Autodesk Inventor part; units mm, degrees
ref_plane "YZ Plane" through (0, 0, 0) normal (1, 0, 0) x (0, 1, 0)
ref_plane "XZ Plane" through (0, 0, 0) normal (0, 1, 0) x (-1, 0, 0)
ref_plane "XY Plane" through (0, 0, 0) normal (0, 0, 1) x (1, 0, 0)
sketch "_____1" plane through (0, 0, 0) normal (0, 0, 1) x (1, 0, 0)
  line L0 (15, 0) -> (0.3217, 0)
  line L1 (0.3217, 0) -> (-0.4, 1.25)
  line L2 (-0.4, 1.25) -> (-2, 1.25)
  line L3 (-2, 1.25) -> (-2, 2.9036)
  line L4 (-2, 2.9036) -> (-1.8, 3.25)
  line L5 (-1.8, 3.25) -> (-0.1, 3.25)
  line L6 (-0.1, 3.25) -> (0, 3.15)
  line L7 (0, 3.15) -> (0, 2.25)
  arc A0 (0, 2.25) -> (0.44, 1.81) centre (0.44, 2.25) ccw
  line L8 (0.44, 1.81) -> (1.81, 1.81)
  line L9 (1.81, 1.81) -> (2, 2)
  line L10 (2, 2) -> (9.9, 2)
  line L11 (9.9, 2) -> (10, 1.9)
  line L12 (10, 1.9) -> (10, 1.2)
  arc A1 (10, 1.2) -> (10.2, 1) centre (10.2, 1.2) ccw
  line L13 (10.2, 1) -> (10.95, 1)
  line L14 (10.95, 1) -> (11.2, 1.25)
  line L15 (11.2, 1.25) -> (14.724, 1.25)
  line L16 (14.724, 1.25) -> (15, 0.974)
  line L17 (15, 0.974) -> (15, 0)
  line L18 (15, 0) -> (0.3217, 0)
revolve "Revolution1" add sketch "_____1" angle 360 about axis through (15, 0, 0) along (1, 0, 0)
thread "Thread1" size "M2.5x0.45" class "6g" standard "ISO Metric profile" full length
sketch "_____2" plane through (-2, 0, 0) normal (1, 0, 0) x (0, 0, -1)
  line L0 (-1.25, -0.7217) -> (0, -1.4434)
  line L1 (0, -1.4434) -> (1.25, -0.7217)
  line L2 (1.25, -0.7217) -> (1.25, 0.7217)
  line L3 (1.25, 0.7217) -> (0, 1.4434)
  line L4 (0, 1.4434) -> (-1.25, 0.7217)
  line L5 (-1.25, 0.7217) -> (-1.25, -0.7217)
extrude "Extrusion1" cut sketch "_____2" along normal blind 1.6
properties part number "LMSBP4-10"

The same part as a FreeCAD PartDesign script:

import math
import FreeCAD as App
import Part
import Sketcher
Q = App.Units.Quantity


def add_polygon(sketch, points):
    """Adds a closed chain of lines whose ends are joined by coincident constraints."""
    first, n = sketch.GeometryCount, len(points)
    for a, b in zip(points, points[1:] + points[:1]):
        sketch.addGeometry(Part.LineSegment(App.Vector(*a, 0), App.Vector(*b, 0)), False)
    for i in range(n):
        sketch.addConstraint(Sketcher.Constraint("Coincident", first + i, 2, first + (i + 1) % n, 1))

doc = App.newDocument("Part")
body = doc.addObject("PartDesign::Body", "Body")

sketch1 = doc.addObject("Sketcher::SketchObject", "Sketch")
body.addObject(sketch1)
sketch1.AttachmentSupport = (doc.XY_Plane, [""])
sketch1.MapMode = "FlatFace"
sketch1.addGeometry([
    Part.LineSegment(App.Vector(0.32, 0, 0), App.Vector(15, 0, 0)),
    Part.LineSegment(App.Vector(15, 0, 0), App.Vector(15, 0.97, 0)),
    Part.LineSegment(App.Vector(15, 0.97, 0), App.Vector(14.72, 1.25, 0)),
    Part.LineSegment(App.Vector(14.72, 1.25, 0), App.Vector(11.2, 1.25, 0)),
    Part.LineSegment(App.Vector(11.2, 1.25, 0), App.Vector(10.95, 1, 0)),
    Part.LineSegment(App.Vector(10.95, 1, 0), App.Vector(10.2, 1, 0)),
    Part.ArcOfCircle(Part.Circle(App.Vector(10.2, 1.2, 0), App.Vector(0, 0, 1), 0.2), math.radians(180), math.radians(270)),
    Part.LineSegment(App.Vector(10, 1.2, 0), App.Vector(10, 1.9, 0)),
    Part.LineSegment(App.Vector(10, 1.9, 0), App.Vector(9.9, 2, 0)),
    Part.LineSegment(App.Vector(9.9, 2, 0), App.Vector(2, 2, 0)),
    Part.LineSegment(App.Vector(2, 2, 0), App.Vector(1.81, 1.81, 0)),
    Part.LineSegment(App.Vector(1.81, 1.81, 0), App.Vector(0.44, 1.81, 0)),
    Part.ArcOfCircle(Part.Circle(App.Vector(0.44, 2.25, 0), App.Vector(0, 0, 1), 0.44), math.radians(180), math.radians(270)),
    Part.LineSegment(App.Vector(0, 2.25, 0), App.Vector(0, 3.15, 0)),
    Part.LineSegment(App.Vector(0, 3.15, 0), App.Vector(-0.1, 3.25, 0)),
    Part.LineSegment(App.Vector(-0.1, 3.25, 0), App.Vector(-1.8, 3.25, 0)),
    Part.LineSegment(App.Vector(-1.8, 3.25, 0), App.Vector(-2, 2.9, 0)),
    Part.LineSegment(App.Vector(-2, 2.9, 0), App.Vector(-2, 1.25, 0)),
    Part.LineSegment(App.Vector(-2, 1.25, 0), App.Vector(-0.4, 1.25, 0)),
    Part.LineSegment(App.Vector(-0.4, 1.25, 0), App.Vector(0.32, 0, 0)),
], False)
sketch1.addConstraint([
    Sketcher.Constraint("Coincident", 0, 2, 1, 1),
    Sketcher.Constraint("Coincident", 1, 2, 2, 1),
    Sketcher.Constraint("Coincident", 2, 2, 3, 1),
    Sketcher.Constraint("Coincident", 3, 2, 4, 1),
    Sketcher.Constraint("Coincident", 4, 2, 5, 1),
    Sketcher.Constraint("Tangent", 5, 2, 6, 2),
    Sketcher.Constraint("Tangent", 6, 1, 7, 1),
    Sketcher.Constraint("Coincident", 7, 2, 8, 1),
    Sketcher.Constraint("Coincident", 8, 2, 9, 1),
    Sketcher.Constraint("Coincident", 9, 2, 10, 1),
    Sketcher.Constraint("Coincident", 10, 2, 11, 1),
    Sketcher.Constraint("Tangent", 11, 2, 12, 2),
    Sketcher.Constraint("Tangent", 12, 1, 13, 1),
    Sketcher.Constraint("Coincident", 13, 2, 14, 1),
    Sketcher.Constraint("Coincident", 14, 2, 15, 1),
    Sketcher.Constraint("Coincident", 15, 2, 16, 1),
    Sketcher.Constraint("Coincident", 16, 2, 17, 1),
    Sketcher.Constraint("Coincident", 17, 2, 18, 1),
    Sketcher.Constraint("Coincident", 18, 2, 19, 1),
    Sketcher.Constraint("Coincident", 19, 2, 0, 1),
    Sketcher.Constraint("Horizontal", 0),
    Sketcher.Constraint("Vertical", 1),
    Sketcher.Constraint("Horizontal", 3),
    Sketcher.Constraint("Horizontal", 5),
    Sketcher.Constraint("Vertical", 7),
    Sketcher.Constraint("Horizontal", 9),
    Sketcher.Constraint("Horizontal", 11),
    Sketcher.Constraint("Vertical", 13),
    Sketcher.Constraint("Horizontal", 15),
    Sketcher.Constraint("Vertical", 17),
    Sketcher.Constraint("Horizontal", 18),
    Sketcher.Constraint("PointOnObject", 0, 2, -1),
    Sketcher.Constraint("PointOnObject", 12, 1, -2),
    Sketcher.Constraint("Perpendicular", 2, 4),
    Sketcher.Constraint("Perpendicular", 4, 8),
    Sketcher.Constraint("Perpendicular", 8, 10),
    Sketcher.Constraint("Perpendicular", 10, 14),
    Sketcher.Constraint("Horizontal", 3, 2, 17, 2),
    Sketcher.Constraint("Equal", 8, 14),
    Sketcher.Constraint("Radius", 6, Q("0.2 mm")),
    Sketcher.Constraint("Angle", 2, Q("135 deg")),
    Sketcher.Constraint("Angle", 16, Q("-120.0007 deg")),
    Sketcher.Constraint("Angle", 19, Q("-59.9996 deg")),
    Sketcher.Constraint("Radius", 12, Q("0.44 mm")),
    Sketcher.Constraint("DistanceX", 9, 2, 9, 1, Q("7.9 mm")),
    Sketcher.Constraint("DistanceX", 15, 2, 15, 1, Q("1.7 mm")),
    Sketcher.Constraint("DistanceX", 18, 1, 18, 2, Q("1.6 mm")),
    Sketcher.Constraint("DistanceY", 7, 1, 7, 2, Q("0.7 mm")),
    Sketcher.Constraint("DistanceY", 13, 1, 13, 2, Q("0.9 mm")),
    Sketcher.Constraint("DistanceX", -1, 1, 0, 2, Q("15 mm")),
    Sketcher.Constraint("DistanceY", -1, 1, 4, 2, Q("1 mm")),
    Sketcher.Constraint("DistanceX", -1, 1, 6, 1, Q("10 mm")),
    Sketcher.Constraint("DistanceY", -1, 1, 8, 2, Q("2 mm")),
    Sketcher.Constraint("DistanceX", 16, 2, -1, 1, Q("2 mm")),
    Sketcher.Constraint("DistanceY", 2, 2, 12, 3, Q("1 mm")),
    Sketcher.Constraint("DistanceX", 6, 3, 3, 2, Q("1 mm")),
    Sketcher.Constraint("DistanceX", 5, 2, 5, 1, Q("0.75 mm")),
    Sketcher.Constraint("DistanceX", 3, 2, 3, 1, Q("3.524 mm")),
])
revolution = doc.addObject("PartDesign::Revolution", "Revolution")
body.addObject(revolution)
revolution.Profile = sketch1
revolution.ReferenceAxis = (sketch1, ["H_Axis"])
revolution.Angle = 360

sketch2 = doc.addObject("Sketcher::SketchObject", "Sketch001")
body.addObject(sketch2)
sketch2.AttachmentSupport = (doc.YZ_Plane, [""])
sketch2.MapMode = "FlatFace"
sketch2.AttachmentOffset = App.Placement(App.Vector(0, 0, -2), App.Rotation())
add_polygon(sketch2, [(0.7, 1.2), (-0.7, 1.2), (-1.4, 0), (-0.7, -1.2), (0.7, -1.2), (1.4, 0)])
sketch2.addConstraint([
    Sketcher.Constraint("Horizontal", 0),
    Sketcher.Constraint("Horizontal", 3),
    Sketcher.Constraint("Symmetric", 0, 2, 3, 2, -1, 1),
    Sketcher.Constraint("Symmetric", 1, 2, 4, 2, -1, 1),
    Sketcher.Constraint("PointOnObject", 1, 2, -1),
    Sketcher.Constraint("Parallel", 2, 5),
    Sketcher.Constraint("Vertical", 0, 2, 2, 2),
    Sketcher.Constraint("Angle", 1, Q("-120.0004 deg")),
    Sketcher.Constraint("DistanceY", 2, 2, 0, 2, Q("2.5 mm")),
    Sketcher.Constraint("DistanceX", 0, 2, 0, 1, Q("1.4434 mm")),
])
pocket1 = doc.addObject("PartDesign::Pocket", "Pocket")
body.addObject(pocket1)
pocket1.Profile = sketch2
pocket1.Length = 1.6
pocket1.Reversed = True

doc.recompute()
